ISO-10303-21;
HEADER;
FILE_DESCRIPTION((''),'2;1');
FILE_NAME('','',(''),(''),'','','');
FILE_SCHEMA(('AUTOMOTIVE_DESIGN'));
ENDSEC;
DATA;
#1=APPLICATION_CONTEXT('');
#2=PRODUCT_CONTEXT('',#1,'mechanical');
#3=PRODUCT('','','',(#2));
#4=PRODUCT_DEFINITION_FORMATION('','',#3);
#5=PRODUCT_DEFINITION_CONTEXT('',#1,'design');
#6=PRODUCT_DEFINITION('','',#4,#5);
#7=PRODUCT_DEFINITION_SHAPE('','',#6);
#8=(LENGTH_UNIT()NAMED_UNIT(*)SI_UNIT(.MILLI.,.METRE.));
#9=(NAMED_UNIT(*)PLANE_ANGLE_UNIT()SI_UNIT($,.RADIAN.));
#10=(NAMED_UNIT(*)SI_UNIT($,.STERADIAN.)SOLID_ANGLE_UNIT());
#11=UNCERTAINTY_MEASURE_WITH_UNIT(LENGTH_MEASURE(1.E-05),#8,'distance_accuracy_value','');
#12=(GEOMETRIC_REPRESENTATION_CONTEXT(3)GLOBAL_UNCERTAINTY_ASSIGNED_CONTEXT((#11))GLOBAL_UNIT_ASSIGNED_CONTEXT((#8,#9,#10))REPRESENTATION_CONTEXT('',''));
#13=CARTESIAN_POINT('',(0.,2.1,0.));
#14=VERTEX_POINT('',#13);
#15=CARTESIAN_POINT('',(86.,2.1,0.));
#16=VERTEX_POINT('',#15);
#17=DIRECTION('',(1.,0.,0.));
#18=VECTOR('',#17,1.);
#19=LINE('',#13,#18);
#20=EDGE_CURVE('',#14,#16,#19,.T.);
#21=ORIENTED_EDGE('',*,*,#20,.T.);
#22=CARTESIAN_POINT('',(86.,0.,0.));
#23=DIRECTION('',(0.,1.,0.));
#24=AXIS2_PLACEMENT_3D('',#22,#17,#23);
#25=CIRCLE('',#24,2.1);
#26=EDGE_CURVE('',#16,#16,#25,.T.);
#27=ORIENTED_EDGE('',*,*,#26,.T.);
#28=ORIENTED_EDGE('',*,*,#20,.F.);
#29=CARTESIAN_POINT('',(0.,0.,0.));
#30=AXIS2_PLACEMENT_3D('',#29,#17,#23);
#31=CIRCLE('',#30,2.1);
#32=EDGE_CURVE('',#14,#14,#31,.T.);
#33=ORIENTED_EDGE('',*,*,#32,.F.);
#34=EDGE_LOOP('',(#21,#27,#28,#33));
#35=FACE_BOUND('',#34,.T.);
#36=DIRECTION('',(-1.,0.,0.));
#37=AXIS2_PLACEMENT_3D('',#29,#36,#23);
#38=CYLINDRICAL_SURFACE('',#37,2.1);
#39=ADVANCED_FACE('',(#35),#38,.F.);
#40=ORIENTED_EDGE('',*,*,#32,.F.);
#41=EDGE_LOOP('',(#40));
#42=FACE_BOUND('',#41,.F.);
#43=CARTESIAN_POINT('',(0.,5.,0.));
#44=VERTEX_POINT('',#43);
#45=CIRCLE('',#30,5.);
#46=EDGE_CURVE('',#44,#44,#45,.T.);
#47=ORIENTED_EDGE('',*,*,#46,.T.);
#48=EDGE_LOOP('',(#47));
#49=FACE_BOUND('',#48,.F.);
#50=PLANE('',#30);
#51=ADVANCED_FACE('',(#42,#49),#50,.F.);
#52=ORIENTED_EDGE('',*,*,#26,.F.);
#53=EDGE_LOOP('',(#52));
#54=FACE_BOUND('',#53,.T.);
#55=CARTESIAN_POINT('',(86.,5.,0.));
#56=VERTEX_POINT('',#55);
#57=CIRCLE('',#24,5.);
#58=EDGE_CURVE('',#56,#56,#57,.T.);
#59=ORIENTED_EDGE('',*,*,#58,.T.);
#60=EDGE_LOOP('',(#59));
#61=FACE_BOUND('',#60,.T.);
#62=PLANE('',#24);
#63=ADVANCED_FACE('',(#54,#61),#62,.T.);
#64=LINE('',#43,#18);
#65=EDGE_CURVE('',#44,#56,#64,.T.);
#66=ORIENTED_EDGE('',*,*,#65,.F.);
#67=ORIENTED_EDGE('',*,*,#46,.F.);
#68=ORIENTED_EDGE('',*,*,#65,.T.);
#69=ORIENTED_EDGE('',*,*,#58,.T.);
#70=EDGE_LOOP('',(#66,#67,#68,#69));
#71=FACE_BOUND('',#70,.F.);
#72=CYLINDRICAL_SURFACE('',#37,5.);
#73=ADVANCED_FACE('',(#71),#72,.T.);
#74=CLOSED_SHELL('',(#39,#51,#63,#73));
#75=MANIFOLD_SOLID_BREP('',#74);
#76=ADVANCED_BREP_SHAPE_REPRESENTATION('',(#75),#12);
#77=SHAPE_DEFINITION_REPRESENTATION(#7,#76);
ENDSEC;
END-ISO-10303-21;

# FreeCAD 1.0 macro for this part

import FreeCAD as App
import Part
import Sketcher
from FreeCAD import Vector
Q = App.Units.Quantity

doc = App.newDocument("Part")
body = doc.addObject("PartDesign::Body", "Body")

# Sketch on YZ plane
sketch1 = body.newObject("Sketcher::SketchObject", "Sketch")
sketch1.AttachmentSupport = (doc.getObject("YZ_Plane"), [""])
sketch1.MapMode = "FlatFace"
sketch1.addGeometry([
    Part.Circle(Vector(0, 0, 0), Vector(0, 0, 1), 5),
    Part.Circle(Vector(0, 0, 0), Vector(0, 0, 1), 2.1),
], False)
sketch1.addConstraint([
    Sketcher.Constraint("Coincident", 0, 3, -1, 1),
    Sketcher.Constraint("Coincident", 1, 3, -1, 1),
    Sketcher.Constraint("Diameter", 0, Q("10 mm")),
    Sketcher.Constraint("Diameter", 1, Q("4.2 mm")),
])
pad1 = body.newObject("PartDesign::Pad", "Pad")
pad1.Profile = sketch1
pad1.Length = 86

doc.recompute()
